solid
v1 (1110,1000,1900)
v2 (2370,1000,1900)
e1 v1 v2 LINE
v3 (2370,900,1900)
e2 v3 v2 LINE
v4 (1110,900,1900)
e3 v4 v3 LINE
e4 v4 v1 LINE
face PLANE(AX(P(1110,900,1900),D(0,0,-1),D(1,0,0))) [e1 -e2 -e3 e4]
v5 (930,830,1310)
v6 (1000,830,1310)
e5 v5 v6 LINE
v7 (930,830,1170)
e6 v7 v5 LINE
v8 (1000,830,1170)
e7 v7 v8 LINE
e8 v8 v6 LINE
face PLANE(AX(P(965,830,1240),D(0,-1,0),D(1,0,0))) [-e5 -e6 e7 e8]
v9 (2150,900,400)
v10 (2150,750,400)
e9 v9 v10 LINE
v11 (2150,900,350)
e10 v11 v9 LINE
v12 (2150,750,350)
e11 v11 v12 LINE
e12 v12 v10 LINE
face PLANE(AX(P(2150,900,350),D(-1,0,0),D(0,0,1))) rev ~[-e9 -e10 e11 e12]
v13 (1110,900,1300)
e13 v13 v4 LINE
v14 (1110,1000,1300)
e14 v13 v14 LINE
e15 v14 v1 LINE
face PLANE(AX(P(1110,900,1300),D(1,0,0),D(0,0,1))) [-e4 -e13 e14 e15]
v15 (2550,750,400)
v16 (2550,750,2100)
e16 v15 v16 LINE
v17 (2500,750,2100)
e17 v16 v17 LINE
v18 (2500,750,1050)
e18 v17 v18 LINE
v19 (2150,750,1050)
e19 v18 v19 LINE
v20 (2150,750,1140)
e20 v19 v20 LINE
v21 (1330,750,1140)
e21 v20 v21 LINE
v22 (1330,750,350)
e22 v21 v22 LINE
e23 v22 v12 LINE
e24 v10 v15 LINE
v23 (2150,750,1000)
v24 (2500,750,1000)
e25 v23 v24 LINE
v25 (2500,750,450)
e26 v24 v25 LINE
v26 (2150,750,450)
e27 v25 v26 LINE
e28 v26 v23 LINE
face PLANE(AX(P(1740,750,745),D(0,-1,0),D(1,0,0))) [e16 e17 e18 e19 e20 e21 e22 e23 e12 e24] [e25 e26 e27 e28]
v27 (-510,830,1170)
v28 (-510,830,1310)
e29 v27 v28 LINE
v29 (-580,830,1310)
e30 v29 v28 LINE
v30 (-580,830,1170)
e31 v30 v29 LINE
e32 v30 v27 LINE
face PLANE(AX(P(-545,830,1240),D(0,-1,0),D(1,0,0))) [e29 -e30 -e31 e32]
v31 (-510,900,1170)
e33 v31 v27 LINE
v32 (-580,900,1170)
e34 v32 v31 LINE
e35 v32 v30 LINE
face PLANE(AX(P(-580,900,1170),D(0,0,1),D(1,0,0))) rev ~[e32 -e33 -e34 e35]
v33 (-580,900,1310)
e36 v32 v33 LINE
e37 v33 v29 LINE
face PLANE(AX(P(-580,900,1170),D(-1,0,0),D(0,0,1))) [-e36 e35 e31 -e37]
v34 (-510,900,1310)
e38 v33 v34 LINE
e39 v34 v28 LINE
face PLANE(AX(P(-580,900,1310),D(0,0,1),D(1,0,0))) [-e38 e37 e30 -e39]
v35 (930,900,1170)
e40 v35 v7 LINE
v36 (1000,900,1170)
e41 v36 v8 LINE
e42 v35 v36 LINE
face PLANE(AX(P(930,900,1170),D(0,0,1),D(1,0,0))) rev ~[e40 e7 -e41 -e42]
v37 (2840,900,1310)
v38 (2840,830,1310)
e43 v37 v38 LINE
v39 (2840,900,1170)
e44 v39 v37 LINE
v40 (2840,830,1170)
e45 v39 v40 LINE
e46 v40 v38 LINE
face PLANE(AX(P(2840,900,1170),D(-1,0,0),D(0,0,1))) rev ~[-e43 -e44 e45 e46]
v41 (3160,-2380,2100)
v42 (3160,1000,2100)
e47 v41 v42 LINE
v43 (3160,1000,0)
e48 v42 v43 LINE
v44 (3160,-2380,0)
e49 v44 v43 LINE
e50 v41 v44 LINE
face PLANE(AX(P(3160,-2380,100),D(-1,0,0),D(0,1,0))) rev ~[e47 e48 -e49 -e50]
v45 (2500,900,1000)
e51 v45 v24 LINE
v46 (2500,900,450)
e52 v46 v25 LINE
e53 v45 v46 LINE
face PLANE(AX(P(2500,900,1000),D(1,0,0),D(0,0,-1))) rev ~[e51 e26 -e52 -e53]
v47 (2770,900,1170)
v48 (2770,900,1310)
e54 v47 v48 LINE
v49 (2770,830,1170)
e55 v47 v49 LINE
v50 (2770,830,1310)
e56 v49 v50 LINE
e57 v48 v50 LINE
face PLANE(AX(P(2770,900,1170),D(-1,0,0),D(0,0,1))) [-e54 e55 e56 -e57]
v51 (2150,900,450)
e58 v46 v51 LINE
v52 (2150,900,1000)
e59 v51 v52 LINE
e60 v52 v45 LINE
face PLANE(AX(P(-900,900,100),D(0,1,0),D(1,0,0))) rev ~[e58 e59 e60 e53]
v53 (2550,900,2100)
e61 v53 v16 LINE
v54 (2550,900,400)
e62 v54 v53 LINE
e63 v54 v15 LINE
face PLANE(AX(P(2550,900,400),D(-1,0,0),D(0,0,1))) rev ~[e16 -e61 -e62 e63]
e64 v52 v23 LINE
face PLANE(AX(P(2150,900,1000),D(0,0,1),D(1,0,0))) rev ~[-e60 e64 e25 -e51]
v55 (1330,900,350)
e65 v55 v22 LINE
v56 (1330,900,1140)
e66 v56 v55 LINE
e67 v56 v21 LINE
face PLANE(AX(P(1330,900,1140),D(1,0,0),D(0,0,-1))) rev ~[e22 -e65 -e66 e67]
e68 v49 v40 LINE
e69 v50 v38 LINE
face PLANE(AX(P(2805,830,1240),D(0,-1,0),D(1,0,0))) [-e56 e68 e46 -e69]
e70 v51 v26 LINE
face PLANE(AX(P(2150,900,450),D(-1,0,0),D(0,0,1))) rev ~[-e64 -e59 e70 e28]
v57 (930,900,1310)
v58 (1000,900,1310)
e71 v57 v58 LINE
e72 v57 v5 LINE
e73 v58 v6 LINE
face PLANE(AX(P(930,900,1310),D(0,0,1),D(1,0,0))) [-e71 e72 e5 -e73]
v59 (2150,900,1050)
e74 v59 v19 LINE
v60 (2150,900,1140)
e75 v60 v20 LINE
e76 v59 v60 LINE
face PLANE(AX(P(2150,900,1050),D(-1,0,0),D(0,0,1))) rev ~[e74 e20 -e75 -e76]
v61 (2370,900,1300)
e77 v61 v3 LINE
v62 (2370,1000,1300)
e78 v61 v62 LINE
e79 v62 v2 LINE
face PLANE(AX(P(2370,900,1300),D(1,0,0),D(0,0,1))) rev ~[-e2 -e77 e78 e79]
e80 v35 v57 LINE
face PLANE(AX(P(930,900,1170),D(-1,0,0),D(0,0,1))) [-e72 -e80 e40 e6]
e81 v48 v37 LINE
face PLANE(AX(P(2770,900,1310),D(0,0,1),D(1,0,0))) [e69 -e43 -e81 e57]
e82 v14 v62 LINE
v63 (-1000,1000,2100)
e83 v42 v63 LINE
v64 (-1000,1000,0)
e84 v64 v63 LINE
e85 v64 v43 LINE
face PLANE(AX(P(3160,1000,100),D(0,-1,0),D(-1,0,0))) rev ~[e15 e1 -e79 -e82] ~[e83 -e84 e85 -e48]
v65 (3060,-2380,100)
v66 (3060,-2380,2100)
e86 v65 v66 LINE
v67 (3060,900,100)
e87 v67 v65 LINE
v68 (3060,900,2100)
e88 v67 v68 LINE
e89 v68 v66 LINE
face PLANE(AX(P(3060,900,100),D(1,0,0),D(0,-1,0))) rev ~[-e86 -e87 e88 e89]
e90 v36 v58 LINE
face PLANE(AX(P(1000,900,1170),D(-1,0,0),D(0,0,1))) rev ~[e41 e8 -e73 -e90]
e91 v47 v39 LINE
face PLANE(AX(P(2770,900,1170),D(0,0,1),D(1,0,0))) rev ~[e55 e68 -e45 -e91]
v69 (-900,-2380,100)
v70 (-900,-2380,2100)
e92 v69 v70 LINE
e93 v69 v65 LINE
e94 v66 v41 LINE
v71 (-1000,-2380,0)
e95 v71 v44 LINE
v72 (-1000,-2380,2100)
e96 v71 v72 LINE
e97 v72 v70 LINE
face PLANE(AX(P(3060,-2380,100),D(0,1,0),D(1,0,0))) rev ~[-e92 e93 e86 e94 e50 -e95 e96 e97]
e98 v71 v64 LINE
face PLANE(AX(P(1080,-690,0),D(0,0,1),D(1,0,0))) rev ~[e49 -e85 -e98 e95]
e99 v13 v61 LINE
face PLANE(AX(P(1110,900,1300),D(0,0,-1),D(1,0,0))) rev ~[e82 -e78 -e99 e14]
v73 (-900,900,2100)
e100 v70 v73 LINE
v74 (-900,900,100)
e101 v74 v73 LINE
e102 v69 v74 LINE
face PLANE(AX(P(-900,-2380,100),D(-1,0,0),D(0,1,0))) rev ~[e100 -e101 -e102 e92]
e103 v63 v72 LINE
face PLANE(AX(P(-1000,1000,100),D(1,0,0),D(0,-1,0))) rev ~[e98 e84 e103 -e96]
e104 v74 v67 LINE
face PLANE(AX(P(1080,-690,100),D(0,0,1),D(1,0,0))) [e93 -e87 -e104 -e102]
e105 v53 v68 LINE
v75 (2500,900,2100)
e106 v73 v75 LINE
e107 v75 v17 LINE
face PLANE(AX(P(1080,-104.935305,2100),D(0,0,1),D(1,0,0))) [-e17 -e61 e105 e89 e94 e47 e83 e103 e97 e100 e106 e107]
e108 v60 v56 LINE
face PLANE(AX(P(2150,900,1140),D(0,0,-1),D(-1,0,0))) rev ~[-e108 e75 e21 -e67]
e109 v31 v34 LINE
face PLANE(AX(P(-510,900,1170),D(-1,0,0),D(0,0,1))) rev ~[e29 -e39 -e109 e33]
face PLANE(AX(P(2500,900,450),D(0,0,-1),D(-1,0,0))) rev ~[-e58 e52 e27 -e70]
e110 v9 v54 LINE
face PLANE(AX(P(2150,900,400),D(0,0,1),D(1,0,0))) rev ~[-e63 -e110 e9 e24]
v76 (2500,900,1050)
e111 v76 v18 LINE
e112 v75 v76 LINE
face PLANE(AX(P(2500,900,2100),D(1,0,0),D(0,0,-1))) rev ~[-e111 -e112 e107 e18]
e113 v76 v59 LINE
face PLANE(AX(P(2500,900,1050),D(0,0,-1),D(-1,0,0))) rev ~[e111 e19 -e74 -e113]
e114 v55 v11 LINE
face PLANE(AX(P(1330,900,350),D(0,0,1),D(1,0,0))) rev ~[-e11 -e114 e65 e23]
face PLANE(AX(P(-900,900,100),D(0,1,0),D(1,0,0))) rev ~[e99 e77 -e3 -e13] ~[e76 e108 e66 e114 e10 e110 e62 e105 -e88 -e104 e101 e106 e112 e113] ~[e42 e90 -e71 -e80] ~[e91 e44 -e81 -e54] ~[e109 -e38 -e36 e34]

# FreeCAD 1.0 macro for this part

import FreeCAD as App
import Part
import Sketcher
from FreeCAD import Vector

doc = App.newDocument("Part")
body = doc.addObject("PartDesign::Body", "Body")

# Sketch on XY plane
sketch1 = body.newObject("Sketcher::SketchObject", "Sketch")
sketch1.AttachmentSupport = (doc.getObject("XY_Plane"), [""])
sketch1.MapMode = "FlatFace"
sketch1.addGeometry(Part.LineSegment(Vector(-1000, 1000, 0), Vector(-1000, -2380, 0)), False)
sketch1.addGeometry(Part.LineSegment(Vector(-1000, -2380, 0), Vector(3160, -2380, 0)), False)
sketch1.addGeometry(Part.LineSegment(Vector(3160, -2380, 0), Vector(3160, 1000, 0)), False)
sketch1.addGeometry(Part.LineSegment(Vector(3160, 1000, 0), Vector(-1000, 1000, 0)), False)
sketch1.addConstraint(Sketcher.Constraint("Coincident", 0, 2, 1, 1))
sketch1.addConstraint(Sketcher.Constraint("Coincident", 1, 2, 2, 1))
sketch1.addConstraint(Sketcher.Constraint("Coincident", 2, 2, 3, 1))
sketch1.addConstraint(Sketcher.Constraint("Coincident", 3, 2, 0, 1))
sketch1.addConstraint(Sketcher.Constraint("Vertical", 0))
sketch1.addConstraint(Sketcher.Constraint("Horizontal", 1))
sketch1.addConstraint(Sketcher.Constraint("Vertical", 2))
sketch1.addConstraint(Sketcher.Constraint("Horizontal", 3))
sketch1.addConstraint(Sketcher.Constraint("DistanceX", 1, 1, 1, 2, 4160.0))
sketch1.addConstraint(Sketcher.Constraint("DistanceY", 0, 2, 0, 1, 3380.0))
sketch1.addConstraint(Sketcher.Constraint("DistanceX", 0, 2, -1, 1, 1000.0))
sketch1.addConstraint(Sketcher.Constraint("DistanceY", 0, 2, -1, 1, 2380.0))
pad1 = body.newObject("PartDesign::Pad", "Pad")
pad1.Profile = sketch1
pad1.Length = 100

# Sketch on XY plane
sketch2 = body.newObject("Sketcher::SketchObject", "Sketch001")
sketch2.AttachmentSupport = (doc.getObject("XY_Plane"), [""])
sketch2.MapMode = "FlatFace"
sketch2.AttachmentOffset = App.Placement(Vector(0, 0, 100), App.Rotation())
sketch2.addGeometry(Part.LineSegment(Vector(3160, 1000, 0), Vector(-1000, 1000, 0)), False)
sketch2.addGeometry(Part.LineSegment(Vector(-1000, 1000, 0), Vector(-1000, -2380, 0)), False)
sketch2.addGeometry(Part.LineSegment(Vector(-1000, -2380, 0), Vector(-900, -2380, 0)), False)
sketch2.addGeometry(Part.LineSegment(Vector(-900, -2380, 0), Vector(-900, 900, 0)), False)
sketch2.addGeometry(Part.LineSegment(Vector(-900, 900, 0), Vector(3060, 900, 0)), False)
sketch2.addGeometry(Part.LineSegment(Vector(3060, 900, 0), Vector(3060, -2380, 0)), False)
sketch2.addGeometry(Part.LineSegment(Vector(3060, -2380, 0), Vector(3160, -2380, 0)), False)
sketch2.addGeometry(Part.LineSegment(Vector(3160, -2380, 0), Vector(3160, 1000, 0)), False)
sketch2.addConstraint(Sketcher.Constraint("Coincident", 0, 2, 1, 1))
sketch2.addConstraint(Sketcher.Constraint("Coincident", 1, 2, 2, 1))
sketch2.addConstraint(Sketcher.Constraint("Coincident", 2, 2, 3, 1))
sketch2.addConstraint(Sketcher.Constraint("Coincident", 3, 2, 4, 1))
sketch2.addConstraint(Sketcher.Constraint("Coincident", 4, 2, 5, 1))
sketch2.addConstraint(Sketcher.Constraint("Coincident", 5, 2, 6, 1))
sketch2.addConstraint(Sketcher.Constraint("Coincident", 6, 2, 7, 1))
sketch2.addConstraint(Sketcher.Constraint("Coincident", 7, 2, 0, 1))
sketch2.addConstraint(Sketcher.Constraint("Horizontal", 0))
sketch2.addConstraint(Sketcher.Constraint("Vertical", 1))
sketch2.addConstraint(Sketcher.Constraint("Horizontal", 2))
sketch2.addConstraint(Sketcher.Constraint("Vertical", 3))
sketch2.addConstraint(Sketcher.Constraint("Horizontal", 4))
sketch2.addConstraint(Sketcher.Constraint("Vertical", 5))
sketch2.addConstraint(Sketcher.Constraint("Horizontal", 6))
sketch2.addConstraint(Sketcher.Constraint("Vertical", 7))
sketch2.addConstraint(Sketcher.Constraint("Horizontal", 2, 2, 5, 2))
sketch2.addConstraint(Sketcher.Constraint("Equal", 2, 6))
sketch2.addConstraint(Sketcher.Constraint("DistanceX", 0, 2, 0, 1, 4160.0))
sketch2.addConstraint(Sketcher.Constraint("DistanceX", 2, 1, 2, 2, 100.0))
sketch2.addConstraint(Sketcher.Constraint("DistanceY", 1, 2, 1, 1, 3380.0))
sketch2.addConstraint(Sketcher.Constraint("DistanceY", 3, 1, 3, 2, 3280.0))
sketch2.addConstraint(Sketcher.Constraint("DistanceX", 0, 2, -1, 1, 1000.0))
sketch2.addConstraint(Sketcher.Constraint("DistanceY", -1, 1, 0, 2, 1000.0))
pad2 = body.newObject("PartDesign::Pad", "Pad001")
pad2.Profile = sketch2
pad2.Length = 2000

# Sketch on XZ plane
sketch3 = body.newObject("Sketcher::SketchObject", "Sketch002")
sketch3.AttachmentSupport = (doc.getObject("XZ_Plane"), [""])
sketch3.MapMode = "FlatFace"
sketch3.AttachmentOffset = App.Placement(Vector(0, 0, -900), App.Rotation())
sketch3.addGeometry(Part.LineSegment(Vector(1110, 1900, 0), Vector(1110, 1300, 0)), False)
sketch3.addGeometry(Part.LineSegment(Vector(1110, 1300, 0), Vector(2370, 1300, 0)), False)
sketch3.addGeometry(Part.LineSegment(Vector(2370, 1300, 0), Vector(2370, 1900, 0)), False)
sketch3.addGeometry(Part.LineSegment(Vector(2370, 1900, 0), Vector(1110, 1900, 0)), False)
sketch3.addConstraint(Sketcher.Constraint("Coincident", 0, 2, 1, 1))
sketch3.addConstraint(Sketcher.Constraint("Coincident", 1, 2, 2, 1))
sketch3.addConstraint(Sketcher.Constraint("Coincident", 2, 2, 3, 1))
sketch3.addConstraint(Sketcher.Constraint("Coincident", 3, 2, 0, 1))
sketch3.addConstraint(Sketcher.Constraint("Vertical", 0))
sketch3.addConstraint(Sketcher.Constraint("Horizontal", 1))
sketch3.addConstraint(Sketcher.Constraint("Vertical", 2))
sketch3.addConstraint(Sketcher.Constraint("Horizontal", 3))
sketch3.addConstraint(Sketcher.Constraint("DistanceX", 1, 1, 1, 2, 1260.0))
sketch3.addConstraint(Sketcher.Constraint("DistanceY", 0, 2, 0, 1, 600.0))
sketch3.addConstraint(Sketcher.Constraint("DistanceX", -1, 1, 0, 2, 1110.0))
sketch3.addConstraint(Sketcher.Constraint("DistanceY", -1, 1, 0, 2, 1300.0))
pocket1 = body.newObject("PartDesign::Pocket", "Pocket")
pocket1.Profile = sketch3
pocket1.Type = "ThroughAll"

# Sketch on XZ plane
sketch4 = body.newObject("Sketcher::SketchObject", "Sketch003")
sketch4.AttachmentSupport = (doc.getObject("XZ_Plane"), [""])
sketch4.MapMode = "FlatFace"
sketch4.AttachmentOffset = App.Placement(Vector(0, 0, -900), App.Rotation())
sketch4.addGeometry(Part.LineSegment(Vector(2150, 1140, 0), Vector(1330, 1140, 0)), False)
sketch4.addGeometry(Part.LineSegment(Vector(1330, 1140, 0), Vector(1330, 350, 0)), False)
sketch4.addGeometry(Part.LineSegment(Vector(1330, 350, 0), Vector(2150, 350, 0)), False)
sketch4.addGeometry(Part.LineSegment(Vector(2150, 350, 0), Vector(2150, 400, 0)), False)
sketch4.addGeometry(Part.LineSegment(Vector(2150, 400, 0), Vector(2550, 400, 0)), False)
sketch4.addGeometry(Part.LineSegment(Vector(2550, 400, 0), Vector(2550, 2100, 0)), False)
sketch4.addGeometry(Part.LineSegment(Vector(2550, 2100, 0), Vector(2500, 2100, 0)), False)
sketch4.addGeometry(Part.LineSegment(Vector(2500, 2100, 0), Vector(2500, 1050, 0)), False)
sketch4.addGeometry(Part.LineSegment(Vector(2500, 1050, 0), Vector(2150, 1050, 0)), False)
sketch4.addGeometry(Part.LineSegment(Vector(2150, 1050, 0), Vector(2150, 1140, 0)), False)
sketch4.addGeometry(Part.LineSegment(Vector(2150, 450, 0), Vector(2150, 1000, 0)), False)
sketch4.addGeometry(Part.LineSegment(Vector(2150, 1000, 0), Vector(2500, 1000, 0)), False)
sketch4.addGeometry(Part.LineSegment(Vector(2500, 1000, 0), Vector(2500, 450, 0)), False)
sketch4.addGeometry(Part.LineSegment(Vector(2500, 450, 0), Vector(2150, 450, 0)), False)
sketch4.addConstraint(Sketcher.Constraint("Coincident", 0, 2, 1, 1))
sketch4.addConstraint(Sketcher.Constraint("Coincident", 1, 2, 2, 1))
sketch4.addConstraint(Sketcher.Constraint("Coincident", 2, 2, 3, 1))
sketch4.addConstraint(Sketcher.Constraint("Coincident", 3, 2, 4, 1))
sketch4.addConstraint(Sketcher.Constraint("Coincident", 4, 2, 5, 1))
sketch4.addConstraint(Sketcher.Constraint("Coincident", 5, 2, 6, 1))
sketch4.addConstraint(Sketcher.Constraint("Coincident", 6, 2, 7, 1))
sketch4.addConstraint(Sketcher.Constraint("Coincident", 7, 2, 8, 1))
sketch4.addConstraint(Sketcher.Constraint("Coincident", 8, 2, 9, 1))
sketch4.addConstraint(Sketcher.Constraint("Coincident", 9, 2, 0, 1))
sketch4.addConstraint(Sketcher.Constraint("Coincident", 10, 2, 11, 1))
sketch4.addConstraint(Sketcher.Constraint("Coincident", 11, 2, 12, 1))
sketch4.addConstraint(Sketcher.Constraint("Coincident", 12, 2, 13, 1))
sketch4.addConstraint(Sketcher.Constraint("Coincident", 13, 2, 10, 1))
sketch4.addConstraint(Sketcher.Constraint("Horizontal", 0))
sketch4.addConstraint(Sketcher.Constraint("Vertical", 1))
sketch4.addConstraint(Sketcher.Constraint("Horizontal", 2))
sketch4.addConstraint(Sketcher.Constraint("Vertical", 3))
sketch4.addConstraint(Sketcher.Constraint("Horizontal", 4))
sketch4.addConstraint(Sketcher.Constraint("Vertical", 5))
sketch4.addConstraint(Sketcher.Constraint("Horizontal", 6))
sketch4.addConstraint(Sketcher.Constraint("Vertical", 7))
sketch4.addConstraint(Sketcher.Constraint("Horizontal", 8))
sketch4.addConstraint(Sketcher.Constraint("Vertical", 9))
sketch4.addConstraint(Sketcher.Constraint("Vertical", 10))
sketch4.addConstraint(Sketcher.Constraint("Horizontal", 11))
sketch4.addConstraint(Sketcher.Constraint("Vertical", 12))
sketch4.addConstraint(Sketcher.Constraint("Horizontal", 13))
sketch4.addConstraint(Sketcher.Constraint("Vertical", 3, 2, 8, 2))
sketch4.addConstraint(Sketcher.Constraint("Vertical", 9, 2, 10, 2))
sketch4.addConstraint(Sketcher.Constraint("Vertical", 7, 2, 11, 2))
sketch4.addConstraint(Sketcher.Constraint("Equal", 6, 3))
sketch4.addConstraint(Sketcher.Constraint("DistanceX", 0, 2, 0, 1, 820.0))
sketch4.addConstraint(Sketcher.Constraint("DistanceX", 4, 1, 4, 2, 400.0))
sketch4.addConstraint(Sketcher.Constraint("DistanceX", 6, 2, 6, 1, 50.0))
sketch4.addConstraint(Sketcher.Constraint("DistanceY", 1, 2, 1, 1, 790.0))
sketch4.addConstraint(Sketcher.Constraint("DistanceY", 5, 1, 5, 2, 1700.0))
sketch4.addConstraint(Sketcher.Constraint("DistanceY", 7, 2, 7, 1, 1050.0))
sketch4.addConstraint(Sketcher.Constraint("DistanceY", 10, 1, 10, 2, 550.0))
sketch4.addConstraint(Sketcher.Constraint("DistanceX", -1, 1, 0, 2, 1330.0))
sketch4.addConstraint(Sketcher.Constraint("DistanceY", -1, 1, 0, 2, 1140.0))
sketch4.addConstraint(Sketcher.Constraint("DistanceY", -1, 1, 10, 2, 1000.0))
pad3 = body.newObject("PartDesign::Pad", "Pad002")
pad3.Profile = sketch4
pad3.Length = 150

# Sketch on XZ plane
sketch5 = body.newObject("Sketcher::SketchObject", "Sketch004")
sketch5.AttachmentSupport = (doc.getObject("XZ_Plane"), [""])
sketch5.MapMode = "FlatFace"
sketch5.AttachmentOffset = App.Placement(Vector(0, 0, -900), App.Rotation())
sketch5.addGeometry(Part.LineSegment(Vector(-580, 1310, 0), Vector(-580, 1170, 0)), False)
sketch5.addGeometry(Part.LineSegment(Vector(-580, 1170, 0), Vector(-510, 1170, 0)), False)
sketch5.addGeometry(Part.LineSegment(Vector(-510, 1170, 0), Vector(-510, 1310, 0)), False)
sketch5.addGeometry(Part.LineSegment(Vector(-510, 1310, 0), Vector(-580, 1310, 0)), False)
sketch5.addGeometry(Part.LineSegment(Vector(930, 1310, 0), Vector(930, 1170, 0)), False)
sketch5.addGeometry(Part.LineSegment(Vector(930, 1170, 0), Vector(1000, 1170, 0)), False)
sketch5.addGeometry(Part.LineSegment(Vector(1000, 1170, 0), Vector(1000, 1310, 0)), False)
sketch5.addGeometry(Part.LineSegment(Vector(1000, 1310, 0), Vector(930, 1310, 0)), False)
sketch5.addGeometry(Part.LineSegment(Vector(2770, 1310, 0), Vector(2770, 1170, 0)), False)
sketch5.addGeometry(Part.LineSegment(Vector(2770, 1170, 0), Vector(2840, 1170, 0)), False)
sketch5.addGeometry(Part.LineSegment(Vector(2840, 1170, 0), Vector(2840, 1310, 0)), False)
sketch5.addGeometry(Part.LineSegment(Vector(2840, 1310, 0), Vector(2770, 1310, 0)), False)
sketch5.addConstraint(Sketcher.Constraint("Coincident", 0, 2, 1, 1))
sketch5.addConstraint(Sketcher.Constraint("Coincident", 1, 2, 2, 1))
sketch5.addConstraint(Sketcher.Constraint("Coincident", 2, 2, 3, 1))
sketch5.addConstraint(Sketcher.Constraint("Coincident", 3, 2, 0, 1))
sketch5.addConstraint(Sketcher.Constraint("Coincident", 4, 2, 5, 1))
sketch5.addConstraint(Sketcher.Constraint("Coincident", 5, 2, 6, 1))
sketch5.addConstraint(Sketcher.Constraint("Coincident", 6, 2, 7, 1))
sketch5.addConstraint(Sketcher.Constraint("Coincident", 7, 2, 4, 1))
sketch5.addConstraint(Sketcher.Constraint("Coincident", 8, 2, 9, 1))
sketch5.addConstraint(Sketcher.Constraint("Coincident", 9, 2, 10, 1))
sketch5.addConstraint(Sketcher.Constraint("Coincident", 10, 2, 11, 1))
sketch5.addConstraint(Sketcher.Constraint("Coincident", 11, 2, 8, 1))
sketch5.addConstraint(Sketcher.Constraint("Vertical", 0))
sketch5.addConstraint(Sketcher.Constraint("Horizontal", 1))
sketch5.addConstraint(Sketcher.Constraint("Vertical", 2))
sketch5.addConstraint(Sketcher.Constraint("Horizontal", 3))
sketch5.addConstraint(Sketcher.Constraint("Vertical", 4))
sketch5.addConstraint(Sketcher.Constraint("Horizontal", 5))
sketch5.addConstraint(Sketcher.Constraint("Vertical", 6))
sketch5.addConstraint(Sketcher.Constraint("Horizontal", 7))
sketch5.addConstraint(Sketcher.Constraint("Vertical", 8))
sketch5.addConstraint(Sketcher.Constraint("Horizontal", 9))
sketch5.addConstraint(Sketcher.Constraint("Vertical", 10))
sketch5.addConstraint(Sketcher.Constraint("Horizontal", 11))
sketch5.addConstraint(Sketcher.Constraint("Horizontal", 1, 2, 4, 2))
sketch5.addConstraint(Sketcher.Constraint("Horizontal", 3, 2, 6, 2))
sketch5.addConstraint(Sketcher.Constraint("Horizontal", 5, 2, 8, 2))
sketch5.addConstraint(Sketcher.Constraint("Horizontal", 7, 2, 10, 2))
sketch5.addConstraint(Sketcher.Constraint("Equal", 3, 5))
sketch5.addConstraint(Sketcher.Constraint("Equal", 7, 9))
sketch5.addConstraint(Sketcher.Constraint("DistanceX", 1, 1, 1, 2, 70.0))
sketch5.addConstraint(Sketcher.Constraint("DistanceY", 0, 2, 0, 1, 140.0))
sketch5.addConstraint(Sketcher.Constraint("DistanceX", 0, 2, -1, 1, 580.0))
sketch5.addConstraint(Sketcher.Constraint("DistanceY", -1, 1, 0, 2, 1170.0))
sketch5.addConstraint(Sketcher.Constraint("DistanceX", -1, 1, 4, 2, 930.0))
sketch5.addConstraint(Sketcher.Constraint("DistanceX", -1, 1, 8, 2, 2770.0))
pad4 = body.newObject("PartDesign::Pad", "Pad003")
pad4.Profile = sketch5
pad4.Length = 70

doc.recompute()
